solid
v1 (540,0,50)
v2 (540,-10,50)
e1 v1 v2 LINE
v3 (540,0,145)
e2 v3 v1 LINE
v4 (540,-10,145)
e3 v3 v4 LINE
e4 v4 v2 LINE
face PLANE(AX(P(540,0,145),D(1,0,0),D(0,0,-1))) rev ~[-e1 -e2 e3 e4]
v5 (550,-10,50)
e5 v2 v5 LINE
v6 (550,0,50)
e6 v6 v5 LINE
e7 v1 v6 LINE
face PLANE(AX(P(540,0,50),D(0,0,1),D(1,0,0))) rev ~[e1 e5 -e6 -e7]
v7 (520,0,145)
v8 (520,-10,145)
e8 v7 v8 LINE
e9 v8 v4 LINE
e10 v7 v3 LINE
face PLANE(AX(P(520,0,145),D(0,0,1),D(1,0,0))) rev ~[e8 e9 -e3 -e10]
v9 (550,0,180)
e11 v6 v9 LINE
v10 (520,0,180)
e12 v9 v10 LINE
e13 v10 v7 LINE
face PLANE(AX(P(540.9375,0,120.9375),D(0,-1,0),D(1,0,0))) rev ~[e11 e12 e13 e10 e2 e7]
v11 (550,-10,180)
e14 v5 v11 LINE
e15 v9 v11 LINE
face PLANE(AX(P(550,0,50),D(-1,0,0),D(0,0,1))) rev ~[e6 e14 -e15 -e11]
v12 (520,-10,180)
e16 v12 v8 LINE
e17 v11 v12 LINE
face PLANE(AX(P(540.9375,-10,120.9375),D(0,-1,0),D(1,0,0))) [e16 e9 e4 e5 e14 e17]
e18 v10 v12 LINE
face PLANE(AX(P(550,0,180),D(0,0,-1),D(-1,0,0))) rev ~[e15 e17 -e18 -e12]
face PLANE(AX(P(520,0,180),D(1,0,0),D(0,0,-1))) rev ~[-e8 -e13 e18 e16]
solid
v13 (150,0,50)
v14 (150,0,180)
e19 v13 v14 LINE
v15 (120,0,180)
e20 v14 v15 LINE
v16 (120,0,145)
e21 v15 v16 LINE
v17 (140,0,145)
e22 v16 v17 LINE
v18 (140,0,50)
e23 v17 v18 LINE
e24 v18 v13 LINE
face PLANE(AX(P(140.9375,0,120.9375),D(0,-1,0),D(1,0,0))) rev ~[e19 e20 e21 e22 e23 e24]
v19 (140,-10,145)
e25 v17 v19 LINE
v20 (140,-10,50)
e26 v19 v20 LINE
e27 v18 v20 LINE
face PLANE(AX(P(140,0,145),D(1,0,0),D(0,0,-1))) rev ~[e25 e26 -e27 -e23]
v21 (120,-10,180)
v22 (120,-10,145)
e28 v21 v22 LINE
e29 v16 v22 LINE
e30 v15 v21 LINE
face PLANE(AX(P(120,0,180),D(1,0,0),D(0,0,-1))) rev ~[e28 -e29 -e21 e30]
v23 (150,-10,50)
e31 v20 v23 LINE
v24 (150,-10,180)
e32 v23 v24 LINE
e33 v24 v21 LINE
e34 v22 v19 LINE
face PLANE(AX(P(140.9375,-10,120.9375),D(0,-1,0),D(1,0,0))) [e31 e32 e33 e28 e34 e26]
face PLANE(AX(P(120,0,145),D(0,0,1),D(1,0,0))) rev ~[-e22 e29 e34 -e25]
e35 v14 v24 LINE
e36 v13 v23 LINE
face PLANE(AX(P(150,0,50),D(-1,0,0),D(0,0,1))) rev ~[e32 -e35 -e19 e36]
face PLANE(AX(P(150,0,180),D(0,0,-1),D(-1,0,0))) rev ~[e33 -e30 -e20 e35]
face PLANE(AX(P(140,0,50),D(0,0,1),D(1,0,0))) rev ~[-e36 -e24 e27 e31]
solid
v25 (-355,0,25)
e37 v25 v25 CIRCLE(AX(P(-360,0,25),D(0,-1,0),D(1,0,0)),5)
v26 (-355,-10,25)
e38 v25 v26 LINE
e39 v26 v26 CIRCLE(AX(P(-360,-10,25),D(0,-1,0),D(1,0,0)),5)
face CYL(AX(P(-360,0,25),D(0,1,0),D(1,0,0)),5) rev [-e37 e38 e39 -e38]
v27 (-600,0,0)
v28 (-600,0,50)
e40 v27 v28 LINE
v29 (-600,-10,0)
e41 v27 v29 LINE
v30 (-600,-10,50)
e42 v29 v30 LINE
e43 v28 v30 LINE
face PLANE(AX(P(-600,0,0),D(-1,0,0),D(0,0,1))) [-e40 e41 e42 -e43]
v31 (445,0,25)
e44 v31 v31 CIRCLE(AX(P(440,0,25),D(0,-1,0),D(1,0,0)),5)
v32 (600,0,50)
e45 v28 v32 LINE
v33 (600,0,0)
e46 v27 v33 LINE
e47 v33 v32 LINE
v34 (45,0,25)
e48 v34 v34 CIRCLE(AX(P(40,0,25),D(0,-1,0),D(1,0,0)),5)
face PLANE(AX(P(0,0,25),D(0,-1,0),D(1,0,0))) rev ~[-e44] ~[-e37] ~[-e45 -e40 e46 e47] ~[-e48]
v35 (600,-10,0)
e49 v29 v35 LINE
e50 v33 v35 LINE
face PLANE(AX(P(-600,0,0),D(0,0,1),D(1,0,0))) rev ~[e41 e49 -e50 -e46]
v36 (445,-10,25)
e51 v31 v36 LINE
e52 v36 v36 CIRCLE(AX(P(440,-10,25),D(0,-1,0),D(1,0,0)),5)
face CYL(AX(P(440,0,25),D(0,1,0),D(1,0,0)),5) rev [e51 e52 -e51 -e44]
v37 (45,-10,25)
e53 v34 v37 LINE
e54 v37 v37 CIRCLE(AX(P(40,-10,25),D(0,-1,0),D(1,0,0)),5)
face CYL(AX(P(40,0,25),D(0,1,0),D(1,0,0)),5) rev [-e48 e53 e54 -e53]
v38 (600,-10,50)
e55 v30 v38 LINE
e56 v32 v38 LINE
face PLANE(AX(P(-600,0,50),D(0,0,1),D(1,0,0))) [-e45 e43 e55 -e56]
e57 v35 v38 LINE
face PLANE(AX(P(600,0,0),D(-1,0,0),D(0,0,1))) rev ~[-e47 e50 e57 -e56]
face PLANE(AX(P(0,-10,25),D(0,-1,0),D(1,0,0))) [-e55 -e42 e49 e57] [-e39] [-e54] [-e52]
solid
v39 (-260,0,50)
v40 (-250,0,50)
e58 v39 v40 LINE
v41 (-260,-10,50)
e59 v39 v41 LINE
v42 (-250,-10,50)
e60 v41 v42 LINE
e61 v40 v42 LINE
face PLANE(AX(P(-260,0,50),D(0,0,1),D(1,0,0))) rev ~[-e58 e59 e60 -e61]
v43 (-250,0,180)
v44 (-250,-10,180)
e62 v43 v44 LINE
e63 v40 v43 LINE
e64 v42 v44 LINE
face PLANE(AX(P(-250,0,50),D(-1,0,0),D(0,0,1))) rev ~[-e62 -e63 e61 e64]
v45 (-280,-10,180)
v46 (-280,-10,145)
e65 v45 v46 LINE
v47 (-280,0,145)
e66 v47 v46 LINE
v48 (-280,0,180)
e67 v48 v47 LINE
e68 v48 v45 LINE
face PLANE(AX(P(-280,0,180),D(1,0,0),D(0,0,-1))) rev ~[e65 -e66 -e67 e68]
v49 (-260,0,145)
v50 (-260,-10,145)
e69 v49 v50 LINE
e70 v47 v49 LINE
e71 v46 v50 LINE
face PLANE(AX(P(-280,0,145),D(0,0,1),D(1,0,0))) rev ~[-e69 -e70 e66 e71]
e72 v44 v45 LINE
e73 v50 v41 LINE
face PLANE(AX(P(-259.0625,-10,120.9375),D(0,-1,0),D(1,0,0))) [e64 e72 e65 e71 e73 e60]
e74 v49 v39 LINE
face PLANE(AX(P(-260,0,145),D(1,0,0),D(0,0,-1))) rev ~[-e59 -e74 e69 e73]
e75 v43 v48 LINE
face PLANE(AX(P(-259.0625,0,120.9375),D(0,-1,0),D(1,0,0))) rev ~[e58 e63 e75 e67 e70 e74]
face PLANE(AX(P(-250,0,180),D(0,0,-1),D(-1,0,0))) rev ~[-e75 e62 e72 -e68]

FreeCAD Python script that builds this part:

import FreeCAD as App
import Part
import Sketcher

V = App.Vector
Q = App.Units.Quantity

doc = App.newDocument("Part")
body = doc.addObject("PartDesign::Body", "Body")

# Sketch on XZ plane
sketch1 = body.newObject("Sketcher::SketchObject", "Sketch")
sketch1.AttachmentSupport = (doc.getObject("XZ_Plane"), [""])
sketch1.MapMode = "FlatFace"
sketch1.addGeometry([
    Part.LineSegment(V(-600, 50, 0), V(-600, 0, 0)),
    Part.LineSegment(V(-600, 0, 0), V(600, 0, 0)),
    Part.LineSegment(V(600, 0, 0), V(600, 50, 0)),
    Part.LineSegment(V(600, 50, 0), V(-600, 50, 0)),
], False)
sketch1.addConstraint([
    Sketcher.Constraint("Coincident", 0, 2, 1, 1),
    Sketcher.Constraint("Coincident", 1, 2, 2, 1),
    Sketcher.Constraint("Coincident", 2, 2, 3, 1),
    Sketcher.Constraint("Coincident", 3, 2, 0, 1),
    Sketcher.Constraint("Vertical", 0),
    Sketcher.Constraint("Horizontal", 1),
    Sketcher.Constraint("Vertical", 2),
    Sketcher.Constraint("Horizontal", 3),
    Sketcher.Constraint("Symmetric", 0, 2, 1, 2, -1, 1),
    Sketcher.Constraint("DistanceX", 1, 1, 1, 2, Q("1200 mm")),
    Sketcher.Constraint("DistanceY", 0, 2, 0, 1, Q("50 mm")),
])
pad1 = body.newObject("PartDesign::Pad", "Pad")
pad1.Profile = sketch1
pad1.Length = 10

# Sketch on XZ plane
sketch2 = body.newObject("Sketcher::SketchObject", "Sketch001")
sketch2.AttachmentSupport = (doc.getObject("XZ_Plane"), [""])
sketch2.MapMode = "FlatFace"
sketch2.addGeometry([
    Part.Circle(V(440, 25, 0), V(0, 0, 1), 5),
    Part.Circle(V(40, 25, 0), V(0, 0, 1), 5),
    Part.Circle(V(-360, 25, 0), V(0, 0, 1), 5),
], False)
sketch2.addConstraint([
    Sketcher.Constraint("Equal", 0, 1),
    Sketcher.Constraint("Equal", 1, 2),
    Sketcher.Constraint("Horizontal", 0, 3, 1, 3),
    Sketcher.Constraint("Horizontal", 1, 3, 2, 3),
    Sketcher.Constraint("Diameter", 0, Q("10 mm")),
    Sketcher.Constraint("DistanceX", -1, 1, 0, 3, Q("440 mm")),
    Sketcher.Constraint("DistanceY", -1, 1, 0, 3, Q("25 mm")),
    Sketcher.Constraint("DistanceX", -1, 1, 1, 3, Q("40 mm")),
    Sketcher.Constraint("DistanceX", 2, 3, -1, 1, Q("360 mm")),
])
pocket1 = body.newObject("PartDesign::Pocket", "Pocket")
pocket1.Profile = sketch2
pocket1.Type = "ThroughAll"
pocket1.Reversed = True
body2 = doc.addObject("PartDesign::Body", "Body001")

# Sketch on XZ plane
sketch3 = body2.newObject("Sketcher::SketchObject", "Sketch002")
sketch3.AttachmentSupport = (doc.getObject("XZ_Plane001"), [""])
sketch3.MapMode = "FlatFace"
sketch3.addGeometry([
    Part.LineSegment(V(540, 50, 0), V(550, 50, 0)),  # 0
    Part.LineSegment(V(550, 50, 0), V(550, 180, 0)),  # 1
    Part.LineSegment(V(550, 180, 0), V(520, 180, 0)),  # 2
    Part.LineSegment(V(520, 180, 0), V(520, 145, 0)),  # 3
    Part.LineSegment(V(520, 145, 0), V(540, 145, 0)),  # 4
    Part.LineSegment(V(540, 145, 0), V(540, 50, 0)),  # 5
], False)
sketch3.addConstraint([
    Sketcher.Constraint("Coincident", 0, 2, 1, 1),
    Sketcher.Constraint("Coincident", 1, 2, 2, 1),
    Sketcher.Constraint("Coincident", 2, 2, 3, 1),
    Sketcher.Constraint("Coincident", 3, 2, 4, 1),
    Sketcher.Constraint("Coincident", 4, 2, 5, 1),
    Sketcher.Constraint("Coincident", 5, 2, 0, 1),
    Sketcher.Constraint("Horizontal", 0),
    Sketcher.Constraint("Vertical", 1),
    Sketcher.Constraint("Horizontal", 2),
    Sketcher.Constraint("Vertical", 3),
    Sketcher.Constraint("Horizontal", 4),
    Sketcher.Constraint("Vertical", 5),
    Sketcher.Constraint("DistanceX", 0, 1, 0, 2, Q("10 mm")),
    Sketcher.Constraint("DistanceX", 2, 2, 2, 1, Q("30 mm")),
    Sketcher.Constraint("DistanceY", 1, 1, 1, 2, Q("130 mm")),
    Sketcher.Constraint("DistanceY", 3, 2, 3, 1, Q("35 mm")),
    Sketcher.Constraint("DistanceX", -1, 1, 0, 2, Q("550 mm")),
    Sketcher.Constraint("DistanceY", -1, 1, 0, 2, Q("50 mm")),
])
pad2 = body2.newObject("PartDesign::Pad", "Pad001")
pad2.Profile = sketch3
pad2.Length = 10
body3 = doc.addObject("PartDesign::Body", "Body002")

# Sketch on XZ plane
sketch4 = body3.newObject("Sketcher::SketchObject", "Sketch003")
sketch4.AttachmentSupport = (doc.getObject("XZ_Plane002"), [""])
sketch4.MapMode = "FlatFace"
sketch4.addGeometry([
    Part.LineSegment(V(150, 50, 0), V(150, 180, 0)),  # 0
    Part.LineSegment(V(150, 180, 0), V(120, 180, 0)),  # 1
    Part.LineSegment(V(120, 180, 0), V(120, 145, 0)),  # 2
    Part.LineSegment(V(120, 145, 0), V(140, 145, 0)),  # 3
    Part.LineSegment(V(140, 145, 0), V(140, 50, 0)),  # 4
    Part.LineSegment(V(140, 50, 0), V(150, 50, 0)),  # 5
], False)
sketch4.addConstraint([
    Sketcher.Constraint("Coincident", 0, 2, 1, 1),
    Sketcher.Constraint("Coincident", 1, 2, 2, 1),
    Sketcher.Constraint("Coincident", 2, 2, 3, 1),
    Sketcher.Constraint("Coincident", 3, 2, 4, 1),
    Sketcher.Constraint("Coincident", 4, 2, 5, 1),
    Sketcher.Constraint("Coincident", 5, 2, 0, 1),
    Sketcher.Constraint("Vertical", 0),
    Sketcher.Constraint("Horizontal", 1),
    Sketcher.Constraint("Vertical", 2),
    Sketcher.Constraint("Horizontal", 3),
    Sketcher.Constraint("Vertical", 4),
    Sketcher.Constraint("Horizontal", 5),
    Sketcher.Constraint("DistanceX", 1, 2, 1, 1, Q("30 mm")),
    Sketcher.Constraint("DistanceX", 3, 1, 3, 2, Q("20 mm")),
    Sketcher.Constraint("DistanceY", 0, 1, 0, 2, Q("130 mm")),
    Sketcher.Constraint("DistanceY", 2, 2, 2, 1, Q("35 mm")),
    Sketcher.Constraint("DistanceX", -1, 1, 0, 2, Q("150 mm")),
    Sketcher.Constraint("DistanceY", -1, 1, 0, 2, Q("180 mm")),
])
pad3 = body3.newObject("PartDesign::Pad", "Pad002")
pad3.Profile = sketch4
pad3.Length = 10
body4 = doc.addObject("PartDesign::Body", "Body003")

# Sketch on XZ plane
sketch5 = body4.newObject("Sketcher::SketchObject", "Sketch004")
sketch5.AttachmentSupport = (doc.getObject("XZ_Plane003"), [""])
sketch5.MapMode = "FlatFace"
sketch5.addGeometry([
    Part.LineSegment(V(-250, 50, 0), V(-250, 180, 0)),  # 0
    Part.LineSegment(V(-250, 180, 0), V(-280, 180, 0)),  # 1
    Part.LineSegment(V(-280, 180, 0), V(-280, 145, 0)),  # 2
    Part.LineSegment(V(-280, 145, 0), V(-260, 145, 0)),  # 3
    Part.LineSegment(V(-260, 145, 0), V(-260, 50, 0)),  # 4
    Part.LineSegment(V(-260, 50, 0), V(-250, 50, 0)),  # 5
], False)
sketch5.addConstraint([
    Sketcher.Constraint("Coincident", 0, 2, 1, 1),
    Sketcher.Constraint("Coincident", 1, 2, 2, 1),
    Sketcher.Constraint("Coincident", 2, 2, 3, 1),
    Sketcher.Constraint("Coincident", 3, 2, 4, 1),
    Sketcher.Constraint("Coincident", 4, 2, 5, 1),
    Sketcher.Constraint("Coincident", 5, 2, 0, 1),
    Sketcher.Constraint("Vertical", 0),
    Sketcher.Constraint("Horizontal", 1),
    Sketcher.Constraint("Vertical", 2),
    Sketcher.Constraint("Horizontal", 3),
    Sketcher.Constraint("Vertical", 4),
    Sketcher.Constraint("Horizontal", 5),
    Sketcher.Constraint("DistanceX", 1, 2, 1, 1, Q("30 mm")),
    Sketcher.Constraint("DistanceX", 3, 1, 3, 2, Q("20 mm")),
    Sketcher.Constraint("DistanceY", 0, 1, 0, 2, Q("130 mm")),
    Sketcher.Constraint("DistanceY", 2, 2, 2, 1, Q("35 mm")),
    Sketcher.Constraint("DistanceX", 0, 2, -1, 1, Q("250 mm")),
    Sketcher.Constraint("DistanceY", -1, 1, 0, 2, Q("180 mm")),
])
pad4 = body4.newObject("PartDesign::Pad", "Pad003")
pad4.Profile = sketch5
pad4.Length = 10

doc.recompute()
